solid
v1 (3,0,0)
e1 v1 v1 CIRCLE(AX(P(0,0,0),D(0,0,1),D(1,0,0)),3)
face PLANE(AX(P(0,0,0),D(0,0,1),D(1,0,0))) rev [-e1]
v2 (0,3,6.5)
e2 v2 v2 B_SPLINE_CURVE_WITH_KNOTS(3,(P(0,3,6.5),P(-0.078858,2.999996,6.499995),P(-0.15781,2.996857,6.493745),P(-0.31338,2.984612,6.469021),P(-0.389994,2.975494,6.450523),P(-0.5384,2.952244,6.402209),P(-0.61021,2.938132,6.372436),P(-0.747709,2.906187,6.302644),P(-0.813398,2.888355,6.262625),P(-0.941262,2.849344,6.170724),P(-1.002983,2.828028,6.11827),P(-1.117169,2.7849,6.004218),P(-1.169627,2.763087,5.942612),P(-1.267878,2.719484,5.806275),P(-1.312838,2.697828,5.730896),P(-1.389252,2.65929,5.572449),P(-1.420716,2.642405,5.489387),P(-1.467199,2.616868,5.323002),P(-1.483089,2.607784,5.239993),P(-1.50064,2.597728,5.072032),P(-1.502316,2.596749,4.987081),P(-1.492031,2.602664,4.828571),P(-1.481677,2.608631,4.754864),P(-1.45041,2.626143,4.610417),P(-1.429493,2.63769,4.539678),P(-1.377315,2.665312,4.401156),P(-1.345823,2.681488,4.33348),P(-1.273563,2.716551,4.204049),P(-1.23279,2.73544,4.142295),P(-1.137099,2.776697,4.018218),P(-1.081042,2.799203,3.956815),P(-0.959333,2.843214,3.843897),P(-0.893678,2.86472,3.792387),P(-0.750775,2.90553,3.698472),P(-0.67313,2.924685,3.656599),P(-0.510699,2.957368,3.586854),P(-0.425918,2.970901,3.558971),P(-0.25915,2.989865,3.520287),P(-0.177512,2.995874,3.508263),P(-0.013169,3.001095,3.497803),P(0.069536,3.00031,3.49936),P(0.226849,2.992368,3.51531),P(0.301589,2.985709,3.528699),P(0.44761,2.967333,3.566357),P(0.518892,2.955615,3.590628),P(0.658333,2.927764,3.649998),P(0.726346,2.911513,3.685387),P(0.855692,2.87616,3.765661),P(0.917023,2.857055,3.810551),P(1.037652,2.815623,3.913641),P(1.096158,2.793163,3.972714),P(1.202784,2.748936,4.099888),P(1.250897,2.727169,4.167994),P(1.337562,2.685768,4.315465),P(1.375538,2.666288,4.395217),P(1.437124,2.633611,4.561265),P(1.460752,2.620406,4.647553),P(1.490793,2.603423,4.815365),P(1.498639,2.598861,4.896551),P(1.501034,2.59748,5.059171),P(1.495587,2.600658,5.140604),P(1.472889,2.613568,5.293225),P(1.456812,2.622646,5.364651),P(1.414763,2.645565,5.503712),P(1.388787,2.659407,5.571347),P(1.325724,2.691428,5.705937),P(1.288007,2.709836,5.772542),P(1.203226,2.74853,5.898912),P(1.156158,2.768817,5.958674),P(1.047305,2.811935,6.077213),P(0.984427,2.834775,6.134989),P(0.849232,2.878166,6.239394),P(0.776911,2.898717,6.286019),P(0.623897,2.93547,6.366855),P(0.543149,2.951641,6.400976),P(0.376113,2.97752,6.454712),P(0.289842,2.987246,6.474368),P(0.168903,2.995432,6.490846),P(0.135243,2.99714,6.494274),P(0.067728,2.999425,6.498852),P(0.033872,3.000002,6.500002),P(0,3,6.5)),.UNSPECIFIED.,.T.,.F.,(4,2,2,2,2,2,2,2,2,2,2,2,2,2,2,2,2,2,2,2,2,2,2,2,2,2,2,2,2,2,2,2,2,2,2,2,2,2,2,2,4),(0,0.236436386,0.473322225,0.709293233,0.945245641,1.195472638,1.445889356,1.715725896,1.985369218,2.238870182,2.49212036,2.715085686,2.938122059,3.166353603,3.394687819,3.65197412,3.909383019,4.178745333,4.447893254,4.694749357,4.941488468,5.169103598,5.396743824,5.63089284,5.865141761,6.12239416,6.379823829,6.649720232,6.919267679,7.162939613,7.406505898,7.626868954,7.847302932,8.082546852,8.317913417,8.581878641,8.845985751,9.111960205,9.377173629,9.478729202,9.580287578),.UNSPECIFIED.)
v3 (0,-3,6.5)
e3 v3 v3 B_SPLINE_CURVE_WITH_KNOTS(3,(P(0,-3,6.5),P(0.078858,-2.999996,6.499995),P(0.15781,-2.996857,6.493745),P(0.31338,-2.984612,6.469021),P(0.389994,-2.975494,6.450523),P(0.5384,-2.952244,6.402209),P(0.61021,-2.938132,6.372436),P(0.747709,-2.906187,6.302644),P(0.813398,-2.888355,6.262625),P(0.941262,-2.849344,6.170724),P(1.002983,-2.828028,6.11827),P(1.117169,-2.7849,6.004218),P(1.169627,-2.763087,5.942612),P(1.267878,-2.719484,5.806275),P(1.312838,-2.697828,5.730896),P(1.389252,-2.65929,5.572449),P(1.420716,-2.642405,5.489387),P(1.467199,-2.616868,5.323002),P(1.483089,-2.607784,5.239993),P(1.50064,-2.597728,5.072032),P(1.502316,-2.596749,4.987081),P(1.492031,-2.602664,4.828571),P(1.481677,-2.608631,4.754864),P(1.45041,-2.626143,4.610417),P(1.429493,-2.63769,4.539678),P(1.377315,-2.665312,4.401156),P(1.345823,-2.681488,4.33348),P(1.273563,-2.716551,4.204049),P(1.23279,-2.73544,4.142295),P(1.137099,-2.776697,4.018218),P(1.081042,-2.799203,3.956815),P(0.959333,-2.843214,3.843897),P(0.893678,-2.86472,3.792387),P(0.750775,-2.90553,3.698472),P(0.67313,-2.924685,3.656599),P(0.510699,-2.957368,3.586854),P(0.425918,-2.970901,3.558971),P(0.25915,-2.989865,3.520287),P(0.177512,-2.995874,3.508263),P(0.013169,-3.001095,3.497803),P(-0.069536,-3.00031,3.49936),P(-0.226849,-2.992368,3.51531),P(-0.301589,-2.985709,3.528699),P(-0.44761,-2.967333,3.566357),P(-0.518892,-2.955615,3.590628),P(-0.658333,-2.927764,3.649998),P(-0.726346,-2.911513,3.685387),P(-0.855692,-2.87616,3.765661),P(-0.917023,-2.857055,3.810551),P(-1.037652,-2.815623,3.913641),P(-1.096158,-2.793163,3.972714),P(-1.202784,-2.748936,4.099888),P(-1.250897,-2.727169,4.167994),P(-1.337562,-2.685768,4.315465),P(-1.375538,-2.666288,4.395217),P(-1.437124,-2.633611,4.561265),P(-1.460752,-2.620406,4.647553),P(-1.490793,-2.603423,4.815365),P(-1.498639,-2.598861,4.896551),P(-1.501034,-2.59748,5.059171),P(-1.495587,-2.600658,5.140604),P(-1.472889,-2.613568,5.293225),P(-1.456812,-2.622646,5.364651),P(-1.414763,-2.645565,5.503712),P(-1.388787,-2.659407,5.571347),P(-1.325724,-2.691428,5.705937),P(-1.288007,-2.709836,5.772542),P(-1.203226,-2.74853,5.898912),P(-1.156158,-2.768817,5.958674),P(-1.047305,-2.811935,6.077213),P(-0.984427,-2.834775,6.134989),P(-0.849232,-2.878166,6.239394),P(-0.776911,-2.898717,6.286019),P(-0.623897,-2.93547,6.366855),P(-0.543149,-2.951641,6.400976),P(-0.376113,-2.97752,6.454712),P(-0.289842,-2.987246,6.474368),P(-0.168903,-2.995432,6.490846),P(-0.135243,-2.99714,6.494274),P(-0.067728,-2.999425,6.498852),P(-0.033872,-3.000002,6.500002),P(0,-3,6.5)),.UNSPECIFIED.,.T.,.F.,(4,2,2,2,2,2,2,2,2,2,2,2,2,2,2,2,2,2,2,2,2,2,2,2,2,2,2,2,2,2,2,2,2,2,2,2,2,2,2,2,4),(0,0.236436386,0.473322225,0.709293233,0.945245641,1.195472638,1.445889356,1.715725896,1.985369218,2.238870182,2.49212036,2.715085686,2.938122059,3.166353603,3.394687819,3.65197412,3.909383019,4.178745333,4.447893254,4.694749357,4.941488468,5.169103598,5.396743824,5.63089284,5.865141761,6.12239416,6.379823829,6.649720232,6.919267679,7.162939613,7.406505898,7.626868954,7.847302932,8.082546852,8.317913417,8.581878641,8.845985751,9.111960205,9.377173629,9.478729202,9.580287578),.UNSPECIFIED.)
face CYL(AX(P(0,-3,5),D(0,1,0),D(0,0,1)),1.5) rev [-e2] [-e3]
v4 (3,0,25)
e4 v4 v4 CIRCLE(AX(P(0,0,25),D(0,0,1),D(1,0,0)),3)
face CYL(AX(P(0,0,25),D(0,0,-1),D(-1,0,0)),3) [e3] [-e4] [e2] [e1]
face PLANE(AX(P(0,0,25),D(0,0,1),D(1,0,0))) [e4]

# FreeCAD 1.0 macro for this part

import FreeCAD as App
import Part
import Sketcher
Q = App.Units.Quantity

doc = App.newDocument("Part")
body = doc.addObject("PartDesign::Body", "Body")

# Sketch on XY plane
sketch1 = body.newObject("Sketcher::SketchObject", "Sketch")
sketch1.AttachmentSupport = (doc.getObject("XY_Plane"), [""])
sketch1.MapMode = "FlatFace"
sketch1.addGeometry(Part.Circle(App.Vector(0, 0, 0), App.Vector(0, 0, 1), 3), False)
sketch1.addConstraint(Sketcher.Constraint("Coincident", 0, 3, -1, 1))
sketch1.addConstraint(Sketcher.Constraint("Diameter", 0, Q("6 mm")))
pad1 = body.newObject("PartDesign::Pad", "Pad")
pad1.Profile = sketch1
pad1.Length = 25

# Sketch on XZ plane
sketch2 = body.newObject("Sketcher::SketchObject", "Sketch001")
sketch2.AttachmentSupport = (doc.getObject("XZ_Plane"), [""])
sketch2.MapMode = "FlatFace"
sketch2.addGeometry(Part.Circle(App.Vector(0, 5, 0), App.Vector(0, 0, 1), 1.5), False)
sketch2.addConstraint(Sketcher.Constraint("PointOnObject", 0, 3, -2))
sketch2.addConstraint(Sketcher.Constraint("Diameter", 0, Q("3 mm")))
sketch2.addConstraint(Sketcher.Constraint("DistanceY", -1, 1, 0, 3, Q("5 mm")))
pocket1 = body.newObject("PartDesign::Pocket", "Pocket")
pocket1.Profile = sketch2
pocket1.Type = "ThroughAll"
pocket1.Midplane = True

doc.recompute()
